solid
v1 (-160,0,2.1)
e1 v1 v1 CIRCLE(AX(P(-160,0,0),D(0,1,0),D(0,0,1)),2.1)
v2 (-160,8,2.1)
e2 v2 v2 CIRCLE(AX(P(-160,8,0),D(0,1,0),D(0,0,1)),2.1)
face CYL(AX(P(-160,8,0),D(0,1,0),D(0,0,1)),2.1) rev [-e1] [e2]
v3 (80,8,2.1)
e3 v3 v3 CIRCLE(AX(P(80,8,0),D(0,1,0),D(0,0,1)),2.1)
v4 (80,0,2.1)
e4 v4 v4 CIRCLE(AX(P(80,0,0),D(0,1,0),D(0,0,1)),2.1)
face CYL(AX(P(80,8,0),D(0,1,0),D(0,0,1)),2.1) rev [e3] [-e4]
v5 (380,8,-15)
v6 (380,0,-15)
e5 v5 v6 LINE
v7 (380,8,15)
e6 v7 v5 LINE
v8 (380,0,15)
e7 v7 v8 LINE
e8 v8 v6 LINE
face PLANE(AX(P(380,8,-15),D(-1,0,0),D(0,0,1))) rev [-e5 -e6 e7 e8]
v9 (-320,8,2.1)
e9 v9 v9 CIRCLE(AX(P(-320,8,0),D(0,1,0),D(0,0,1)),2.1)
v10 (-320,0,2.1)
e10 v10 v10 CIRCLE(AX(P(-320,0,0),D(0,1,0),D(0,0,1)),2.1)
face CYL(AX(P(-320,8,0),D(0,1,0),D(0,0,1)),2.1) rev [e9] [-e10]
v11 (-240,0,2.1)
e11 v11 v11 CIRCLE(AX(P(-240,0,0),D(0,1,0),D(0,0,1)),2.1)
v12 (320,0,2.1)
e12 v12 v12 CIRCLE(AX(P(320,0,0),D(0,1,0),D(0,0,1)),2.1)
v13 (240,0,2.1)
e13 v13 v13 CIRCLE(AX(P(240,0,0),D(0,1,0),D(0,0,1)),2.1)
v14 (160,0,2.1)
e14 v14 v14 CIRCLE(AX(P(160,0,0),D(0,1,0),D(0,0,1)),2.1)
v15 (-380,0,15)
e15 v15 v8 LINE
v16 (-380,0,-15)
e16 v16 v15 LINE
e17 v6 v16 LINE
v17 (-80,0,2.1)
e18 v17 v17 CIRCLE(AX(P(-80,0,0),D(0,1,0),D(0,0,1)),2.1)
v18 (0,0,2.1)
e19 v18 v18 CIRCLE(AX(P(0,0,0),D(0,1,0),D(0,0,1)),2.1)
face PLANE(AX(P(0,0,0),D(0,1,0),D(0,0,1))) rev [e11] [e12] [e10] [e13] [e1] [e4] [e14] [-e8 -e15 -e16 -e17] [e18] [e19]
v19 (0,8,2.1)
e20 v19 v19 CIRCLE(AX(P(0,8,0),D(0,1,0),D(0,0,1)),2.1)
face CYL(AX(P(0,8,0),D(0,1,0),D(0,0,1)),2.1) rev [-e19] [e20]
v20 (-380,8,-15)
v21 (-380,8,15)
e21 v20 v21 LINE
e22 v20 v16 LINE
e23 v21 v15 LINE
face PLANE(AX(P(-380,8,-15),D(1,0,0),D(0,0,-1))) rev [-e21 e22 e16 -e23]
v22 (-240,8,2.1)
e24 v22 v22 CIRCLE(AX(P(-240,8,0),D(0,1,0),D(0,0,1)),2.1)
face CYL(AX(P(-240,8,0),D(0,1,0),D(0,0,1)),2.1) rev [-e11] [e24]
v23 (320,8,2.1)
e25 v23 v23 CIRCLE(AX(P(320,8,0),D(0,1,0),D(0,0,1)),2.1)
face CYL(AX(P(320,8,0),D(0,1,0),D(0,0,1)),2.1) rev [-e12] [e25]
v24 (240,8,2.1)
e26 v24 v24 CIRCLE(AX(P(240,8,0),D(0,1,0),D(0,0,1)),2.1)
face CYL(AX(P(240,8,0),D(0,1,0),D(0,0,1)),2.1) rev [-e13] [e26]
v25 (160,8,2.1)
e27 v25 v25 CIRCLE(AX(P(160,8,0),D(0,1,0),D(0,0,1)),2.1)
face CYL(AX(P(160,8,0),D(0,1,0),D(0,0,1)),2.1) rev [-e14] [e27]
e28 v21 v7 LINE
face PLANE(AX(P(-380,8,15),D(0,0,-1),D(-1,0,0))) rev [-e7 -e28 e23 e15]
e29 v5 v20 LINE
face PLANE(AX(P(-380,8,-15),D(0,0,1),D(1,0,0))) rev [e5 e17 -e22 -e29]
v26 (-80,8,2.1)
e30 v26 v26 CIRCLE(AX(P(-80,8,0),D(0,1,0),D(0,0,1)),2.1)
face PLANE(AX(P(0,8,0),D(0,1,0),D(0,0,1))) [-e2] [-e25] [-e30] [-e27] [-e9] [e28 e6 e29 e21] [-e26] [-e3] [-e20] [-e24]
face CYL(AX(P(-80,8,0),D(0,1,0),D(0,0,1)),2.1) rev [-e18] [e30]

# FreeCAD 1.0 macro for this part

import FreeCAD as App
import Part
import Sketcher
Q = App.Units.Quantity

doc = App.newDocument("Part")
body = doc.addObject("PartDesign::Body", "Body")

sketch1 = body.newObject("Sketcher::SketchObject", "Sketch")
sketch1.AttachmentSupport = (doc.getObject("XZ_Plane"), [""])
sketch1.MapMode = "FlatFace"
sketch1.addGeometry([
    Part.LineSegment(App.Vector(-380, -15, 0), App.Vector(-380, 15, 0)),
    Part.LineSegment(App.Vector(-380, 15, 0), App.Vector(380, 15, 0)),
    Part.LineSegment(App.Vector(380, 15, 0), App.Vector(380, -15, 0)),
    Part.LineSegment(App.Vector(380, -15, 0), App.Vector(-380, -15, 0)),
], False)
sketch1.addConstraint([
    Sketcher.Constraint("Coincident", 0, 2, 1, 1),
    Sketcher.Constraint("Coincident", 1, 2, 2, 1),
    Sketcher.Constraint("Coincident", 2, 2, 3, 1),
    Sketcher.Constraint("Coincident", 3, 2, 0, 1),
    Sketcher.Constraint("Vertical", 0),
    Sketcher.Constraint("Horizontal", 1),
    Sketcher.Constraint("Vertical", 2),
    Sketcher.Constraint("Horizontal", 3),
    Sketcher.Constraint("Symmetric", 0, 2, 2, 2, -1, 1),
    Sketcher.Constraint("DistanceX", 1, 1, 1, 2, Q("760 mm")),
    Sketcher.Constraint("DistanceY", 0, 1, 0, 2, Q("30 mm")),
])
pad1 = body.newObject("PartDesign::Pad", "Pad")
pad1.Profile = sketch1
pad1.Length = 8
pad1.Reversed = True

sketch2 = body.newObject("Sketcher::SketchObject", "Sketch001")
sketch2.AttachmentSupport = (doc.getObject("XZ_Plane"), [""])
sketch2.MapMode = "FlatFace"
sketch2.AttachmentOffset = App.Placement(App.Vector(0, 0, -8), App.Rotation())
sketch2.addGeometry([
    Part.Circle(App.Vector(0, 0, 0), App.Vector(0, 0, 1), 2.1),
    Part.Circle(App.Vector(80, 0, 0), App.Vector(0, 0, 1), 2.1),
    Part.Circle(App.Vector(160, 0, 0), App.Vector(0, 0, 1), 2.1),
    Part.Circle(App.Vector(240, 0, 0), App.Vector(0, 0, 1), 2.1),
    Part.Circle(App.Vector(320, 0, 0), App.Vector(0, 0, 1), 2.1),
    Part.Circle(App.Vector(-80, 0, 0), App.Vector(0, 0, 1), 2.1),
    Part.Circle(App.Vector(-160, 0, 0), App.Vector(0, 0, 1), 2.1),
    Part.Circle(App.Vector(-240, 0, 0), App.Vector(0, 0, 1), 2.1),
    Part.Circle(App.Vector(-320, 0, 0), App.Vector(0, 0, 1), 2.1),
], False)
sketch2.addConstraint([
    Sketcher.Constraint("Coincident", 0, 3, -1, 1),
    Sketcher.Constraint("Equal", 0, 1),
    Sketcher.Constraint("Equal", 1, 2),
    Sketcher.Constraint("Equal", 2, 3),
    Sketcher.Constraint("Equal", 3, 4),
    Sketcher.Constraint("Equal", 4, 5),
    Sketcher.Constraint("Equal", 5, 6),
    Sketcher.Constraint("Equal", 6, 7),
    Sketcher.Constraint("Equal", 7, 8),
    Sketcher.Constraint("Symmetric", 1, 3, 5, 3, -1, 1),
    Sketcher.Constraint("Symmetric", 2, 3, 6, 3, -1, 1),
    Sketcher.Constraint("Symmetric", 3, 3, 7, 3, -1, 1),
    Sketcher.Constraint("Symmetric", 4, 3, 8, 3, -1, 1),
    Sketcher.Constraint("PointOnObject", 1, 3, -1),
    Sketcher.Constraint("PointOnObject", 2, 3, -1),
    Sketcher.Constraint("PointOnObject", 3, 3, -1),
    Sketcher.Constraint("PointOnObject", 4, 3, -1),
    Sketcher.Constraint("Diameter", 0, Q("4.2 mm")),
    Sketcher.Constraint("DistanceX", -1, 1, 1, 3, Q("80 mm")),
    Sketcher.Constraint("DistanceX", -1, 1, 2, 3, Q("160 mm")),
    Sketcher.Constraint("DistanceX", -1, 1, 3, 3, Q("240 mm")),
    Sketcher.Constraint("DistanceX", -1, 1, 4, 3, Q("320 mm")),
])
doc.recompute()
hole = body.newObject("PartDesign::Hole", "Hole")
hole.Profile = sketch2
hole.ThreadType = "None"
hole.Diameter = 4.2
hole.DepthType = "ThroughAll"
hole.Reversed = True

doc.recompute()
